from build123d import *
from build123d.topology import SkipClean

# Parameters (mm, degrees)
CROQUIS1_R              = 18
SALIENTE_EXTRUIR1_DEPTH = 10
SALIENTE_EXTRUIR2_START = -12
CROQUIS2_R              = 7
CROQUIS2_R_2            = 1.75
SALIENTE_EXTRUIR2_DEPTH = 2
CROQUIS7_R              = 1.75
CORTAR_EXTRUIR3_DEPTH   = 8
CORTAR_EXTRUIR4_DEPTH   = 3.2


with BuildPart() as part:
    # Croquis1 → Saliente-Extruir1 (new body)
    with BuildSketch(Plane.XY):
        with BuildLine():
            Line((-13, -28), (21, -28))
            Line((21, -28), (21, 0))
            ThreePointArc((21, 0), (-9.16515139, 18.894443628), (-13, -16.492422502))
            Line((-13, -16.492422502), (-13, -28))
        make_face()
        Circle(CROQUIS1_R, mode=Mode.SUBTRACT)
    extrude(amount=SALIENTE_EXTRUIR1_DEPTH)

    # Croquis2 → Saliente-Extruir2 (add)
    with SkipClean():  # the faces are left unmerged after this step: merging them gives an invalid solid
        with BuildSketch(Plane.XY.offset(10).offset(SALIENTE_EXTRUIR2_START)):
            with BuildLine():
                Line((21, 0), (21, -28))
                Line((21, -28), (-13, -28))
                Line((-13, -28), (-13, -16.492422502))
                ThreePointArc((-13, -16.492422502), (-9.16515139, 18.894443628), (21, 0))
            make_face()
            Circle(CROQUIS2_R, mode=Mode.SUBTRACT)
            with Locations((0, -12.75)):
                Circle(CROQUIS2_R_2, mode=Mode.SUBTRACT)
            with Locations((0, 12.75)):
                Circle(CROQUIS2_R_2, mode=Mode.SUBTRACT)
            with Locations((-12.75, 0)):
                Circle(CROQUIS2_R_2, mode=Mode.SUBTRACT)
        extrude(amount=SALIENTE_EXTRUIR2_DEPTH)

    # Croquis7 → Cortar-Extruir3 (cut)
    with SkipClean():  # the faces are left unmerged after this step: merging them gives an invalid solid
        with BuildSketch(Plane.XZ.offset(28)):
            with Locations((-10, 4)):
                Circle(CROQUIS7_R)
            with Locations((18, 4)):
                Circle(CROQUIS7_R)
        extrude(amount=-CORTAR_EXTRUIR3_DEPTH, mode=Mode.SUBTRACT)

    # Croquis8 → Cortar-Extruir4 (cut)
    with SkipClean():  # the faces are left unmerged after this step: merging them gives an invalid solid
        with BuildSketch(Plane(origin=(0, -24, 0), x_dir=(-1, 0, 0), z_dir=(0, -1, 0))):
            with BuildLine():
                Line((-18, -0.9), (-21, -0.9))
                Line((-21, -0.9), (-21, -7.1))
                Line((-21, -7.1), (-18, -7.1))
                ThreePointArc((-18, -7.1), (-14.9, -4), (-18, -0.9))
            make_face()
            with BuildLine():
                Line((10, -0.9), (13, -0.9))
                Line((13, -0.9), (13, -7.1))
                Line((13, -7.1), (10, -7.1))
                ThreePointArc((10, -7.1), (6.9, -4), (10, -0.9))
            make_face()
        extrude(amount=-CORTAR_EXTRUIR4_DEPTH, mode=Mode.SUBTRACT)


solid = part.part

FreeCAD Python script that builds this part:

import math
import FreeCAD as App
import Part
import Sketcher

V = App.Vector
Q = App.Units.Quantity

doc = App.newDocument("Part")
body = doc.addObject("PartDesign::Body", "Body")

# Sketch on XY plane
sketch1 = body.newObject("Sketcher::SketchObject", "Sketch")
sketch1.AttachmentSupport = (doc.getObject("XY_Plane"), [""])
sketch1.MapMode = "FlatFace"
sketch1.addGeometry([
    Part.LineSegment(V(-13, -28, 0), V(21, -28, 0)),  # 0
    Part.LineSegment(V(21, -28, 0), V(21, 0, 0)),  # 1
    Part.ArcOfCircle(Part.Circle(V(0, 0, 0), V(0, 0, 1), 21), math.radians(0), math.radians(232)),  # 2
    Part.LineSegment(V(-13, -16, 0), V(-13, -28, 0)),  # 3
    Part.Circle(V(0, 0, 0), V(0, 0, 1), 18),  # 4
], False)
sketch1.addConstraint([
    Sketcher.Constraint("Coincident", 0, 2, 1, 1),
    Sketcher.Constraint("Tangent", 1, 2, 2, 1),
    Sketcher.Constraint("Coincident", 2, 2, 3, 1),
    Sketcher.Constraint("Coincident", 3, 2, 0, 1),
    Sketcher.Constraint("Horizontal", 0),
    Sketcher.Constraint("Vertical", 1),
    Sketcher.Constraint("Vertical", 3),
    Sketcher.Constraint("Coincident", 2, 3, -1, 1),
    Sketcher.Constraint("Coincident", 4, 3, -1, 1),
    Sketcher.Constraint("Diameter", 4, Q("36 mm")),
    Sketcher.Constraint("Radius", 2, Q("21 mm")),
    Sketcher.Constraint("DistanceX", 0, 1, 0, 2, Q("34 mm")),
    Sketcher.Constraint("DistanceY", 1, 1, 1, 2, Q("28 mm")),
])
pad1 = body.newObject("PartDesign::Pad", "Pad")
pad1.Profile = sketch1
pad1.Length = 10

# Sketch on XY plane
sketch2 = body.newObject("Sketcher::SketchObject", "Sketch001")
sketch2.AttachmentSupport = (doc.getObject("XY_Plane"), [""])
sketch2.MapMode = "FlatFace"
sketch2.AttachmentOffset = App.Placement(V(0, 0, -2), App.Rotation())
sketch2.addGeometry([
    Part.LineSegment(V(21, -28, 0), V(21, 0, 0)),  # 0
    Part.ArcOfCircle(Part.Circle(V(0, 0, 0), V(0, 0, 1), 21), math.radians(0), math.radians(232)),  # 1
    Part.LineSegment(V(-13, -16.5, 0), V(-13, -28, 0)),  # 2
    Part.LineSegment(V(-13, -28, 0), V(21, -28, 0)),  # 3
    Part.Circle(V(0, -12.8, 0), V(0, 0, 1), 1.8),  # 4
    Part.Circle(V(0, 0, 0), V(0, 0, 1), 7),  # 5
    Part.Circle(V(0, 12.8, 0), V(0, 0, 1), 1.8),  # 6
    Part.Circle(V(-12.8, 0, 0), V(0, 0, 1), 1.8),  # 7
], False)
sketch2.addConstraint([
    Sketcher.Constraint("Tangent", 0, 2, 1, 1),
    Sketcher.Constraint("Coincident", 1, 2, 2, 1),
    Sketcher.Constraint("Coincident", 2, 2, 3, 1),
    Sketcher.Constraint("Coincident", 3, 2, 0, 1),
    Sketcher.Constraint("Vertical", 0),
    Sketcher.Constraint("Vertical", 2),
    Sketcher.Constraint("Horizontal", 3),
    Sketcher.Constraint("Coincident", 1, 3, -1, 1),
    Sketcher.Constraint("Coincident", 5, 3, -1, 1),
    Sketcher.Constraint("Equal", 4, 6),
    Sketcher.Constraint("Equal", 6, 7),
    Sketcher.Constraint("Symmetric", 4, 3, 6, 3, -1, 1),
    Sketcher.Constraint("PointOnObject", 4, 3, -2),
    Sketcher.Constraint("PointOnObject", 7, 3, -1),
    Sketcher.Constraint("Diameter", 5, Q("14 mm")),
    Sketcher.Constraint("Radius", 1, Q("21 mm")),
    Sketcher.Constraint("Diameter", 4, Q("3.5 mm")),
    Sketcher.Constraint("DistanceX", 3, 1, 3, 2, Q("34 mm")),
    Sketcher.Constraint("DistanceY", 0, 1, 0, 2, Q("28 mm")),
    Sketcher.Constraint("DistanceY", 4, 3, 6, 3, Q("25.5 mm")),
    Sketcher.Constraint("DistanceX", 7, 3, -1, 1, Q("12.75 mm")),
])
pad2 = body.newObject("PartDesign::Pad", "Pad001")
pad2.Profile = sketch2
pad2.Length = 2

# Sketch on XZ plane
sketch3 = body.newObject("Sketcher::SketchObject", "Sketch002")
sketch3.AttachmentSupport = (doc.getObject("XZ_Plane"), [""])
sketch3.MapMode = "FlatFace"
sketch3.AttachmentOffset = App.Placement(V(0, 0, 28), App.Rotation())
sketch3.addGeometry([
    Part.Circle(V(-10, 4, 0), V(0, 0, 1), 1.8),
    Part.Circle(V(18, 4, 0), V(0, 0, 1), 1.8),
], False)
sketch3.addConstraint([
    Sketcher.Constraint("Equal", 0, 1),
    Sketcher.Constraint("Horizontal", 0, 3, 1, 3),
    Sketcher.Constraint("Diameter", 0, Q("3.5 mm")),
    Sketcher.Constraint("DistanceX", 0, 3, -1, 1, Q("10 mm")),
    Sketcher.Constraint("DistanceY", -1, 1, 0, 3, Q("4 mm")),
    Sketcher.Constraint("DistanceX", -1, 1, 1, 3, Q("18 mm")),
])
pocket1 = body.newObject("PartDesign::Pocket", "Pocket")
pocket1.Profile = sketch3
pocket1.Length = 8

# Sketch on XZ plane
sketch4 = body.newObject("Sketcher::SketchObject", "Sketch003")
sketch4.AttachmentSupport = (doc.getObject("XZ_Plane"), [""])
sketch4.MapMode = "FlatFace"
sketch4.AttachmentOffset = App.Placement(V(0, 0, 24), App.Rotation())
sketch4.addGeometry([
    Part.LineSegment(V(18, 0.9, 0), V(21, 0.9, 0)),  # 0
    Part.LineSegment(V(21, 0.9, 0), V(21, 7.1, 0)),  # 1
    Part.LineSegment(V(21, 7.1, 0), V(18, 7.1, 0)),  # 2
    Part.ArcOfCircle(Part.Circle(V(18, 4, 0), V(0, 0, 1), 3.1), math.radians(90), math.radians(270)),  # 3
    Part.LineSegment(V(-13, 0.9, 0), V(-10, 0.9, 0)),  # 4
    Part.ArcOfCircle(Part.Circle(V(-10, 4, 0), V(0, 0, 1), 3.1), math.radians(-90), math.radians(90)),  # 5
    Part.LineSegment(V(-10, 7.1, 0), V(-13, 7.1, 0)),  # 6
    Part.LineSegment(V(-13, 7.1, 0), V(-13, 0.9, 0)),  # 7
], False)
sketch4.addConstraint([
    Sketcher.Constraint("Coincident", 0, 2, 1, 1),
    Sketcher.Constraint("Coincident", 1, 2, 2, 1),
    Sketcher.Constraint("Tangent", 2, 2, 3, 1),
    Sketcher.Constraint("Tangent", 3, 2, 0, 1),
    Sketcher.Constraint("Tangent", 4, 2, 5, 1),
    Sketcher.Constraint("Tangent", 5, 2, 6, 1),
    Sketcher.Constraint("Coincident", 6, 2, 7, 1),
    Sketcher.Constraint("Coincident", 7, 2, 4, 1),
    Sketcher.Constraint("Horizontal", 0),
    Sketcher.Constraint("Vertical", 1),
    Sketcher.Constraint("Horizontal", 2),
    Sketcher.Constraint("Horizontal", 4),
    Sketcher.Constraint("Horizontal", 6),
    Sketcher.Constraint("Vertical", 7),
    Sketcher.Constraint("Equal", 3, 5),
    Sketcher.Constraint("Horizontal", 3, 3, 5, 3),
    Sketcher.Constraint("Equal", 2, 4),
    Sketcher.Constraint("Radius", 3, Q("3.1 mm")),
    Sketcher.Constraint("DistanceX", 0, 1, 0, 2, Q("3 mm")),
    Sketcher.Constraint("DistanceX", -1, 1, 3, 3, Q("18 mm")),
    Sketcher.Constraint("DistanceY", -1, 1, 3, 3, Q("4 mm")),
    Sketcher.Constraint("DistanceX", 5, 3, -1, 1, Q("10 mm")),
])
pocket2 = body.newObject("PartDesign::Pocket", "Pocket001")
pocket2.Profile = sketch4
pocket2.Length = 3.2

doc.recompute()
